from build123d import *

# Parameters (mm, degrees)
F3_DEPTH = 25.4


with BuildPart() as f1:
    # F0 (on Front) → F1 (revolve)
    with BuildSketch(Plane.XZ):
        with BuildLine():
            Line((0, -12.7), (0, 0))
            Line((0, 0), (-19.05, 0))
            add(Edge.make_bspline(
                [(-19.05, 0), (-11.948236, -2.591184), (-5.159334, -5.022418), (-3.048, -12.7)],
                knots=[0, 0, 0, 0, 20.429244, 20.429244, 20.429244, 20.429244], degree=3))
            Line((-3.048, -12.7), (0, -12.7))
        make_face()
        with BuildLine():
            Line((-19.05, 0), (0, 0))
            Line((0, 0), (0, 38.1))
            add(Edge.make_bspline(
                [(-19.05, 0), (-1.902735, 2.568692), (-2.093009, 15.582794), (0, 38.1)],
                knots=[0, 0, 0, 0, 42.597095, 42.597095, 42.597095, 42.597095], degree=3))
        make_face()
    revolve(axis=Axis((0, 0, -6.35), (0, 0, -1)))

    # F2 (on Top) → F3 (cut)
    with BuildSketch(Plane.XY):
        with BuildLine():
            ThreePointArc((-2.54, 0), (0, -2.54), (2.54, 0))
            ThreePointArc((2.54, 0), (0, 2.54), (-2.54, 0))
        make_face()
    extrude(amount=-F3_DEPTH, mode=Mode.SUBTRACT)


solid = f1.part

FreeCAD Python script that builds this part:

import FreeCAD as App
import Part
import Sketcher
Q = App.Units.Quantity

doc = App.newDocument("Part")
body = doc.addObject("PartDesign::Body", "Body")

# Sketch on XZ plane
sketch1 = body.newObject("Sketcher::SketchObject", "Sketch")
sketch1.AttachmentSupport = (doc.getObject("XZ_Plane"), [""])
sketch1.MapMode = "FlatFace"
sketch1.addGeometry([
    Part.LineSegment(App.Vector(0, -12.7, 0), App.Vector(0, 38.1, 0)),
    Part.BSplineCurve([App.Vector(-19.05, 0, 0), App.Vector(-1.902735, 2.568692, 0), App.Vector(-2.093009, 15.582794, 0), App.Vector(0, 38.1, 0)], [4, 4], [0, 42.597095], False, 3, [1, 1, 1, 1], False),
    Part.BSplineCurve([App.Vector(-19.05, 0, 0), App.Vector(-11.948236, -2.591184, 0), App.Vector(-5.159334, -5.022418, 0), App.Vector(-3.048, -12.7, 0)], [4, 4], [0, 20.429244], False, 3, [1, 1, 1, 1], False),
    Part.LineSegment(App.Vector(-3.048, -12.7, 0), App.Vector(0, -12.7, 0)),
], False)
sketch1.addConstraint([
    Sketcher.Constraint("Block", 1),
    Sketcher.Constraint("Block", 2),
    Sketcher.Constraint("Coincident", 0, 2, 1, 2),
    Sketcher.Constraint("Coincident", 2, 2, 3, 1),
    Sketcher.Constraint("Coincident", 3, 2, 0, 1),
    Sketcher.Constraint("Vertical", 0),
    Sketcher.Constraint("Horizontal", 3),
])
revolution = body.newObject("PartDesign::Revolution", "Revolution")
revolution.Profile = sketch1
revolution.ReferenceAxis = (sketch1, ["V_Axis"])
revolution.Angle = 360

# Sketch on XY plane
sketch2 = body.newObject("Sketcher::SketchObject", "Sketch001")
sketch2.AttachmentSupport = (doc.getObject("XY_Plane"), [""])
sketch2.MapMode = "FlatFace"
sketch2.addGeometry(Part.Circle(App.Vector(0, 0, 0), App.Vector(0, 0, 1), 2.54), False)
sketch2.addConstraint([
    Sketcher.Constraint("Coincident", 0, 3, -1, 1),
    Sketcher.Constraint("Diameter", 0, Q("0.2 in")),
])
pocket1 = body.newObject("PartDesign::Pocket", "Pocket")
pocket1.Profile = sketch2
pocket1.Length = Q("1 in")

doc.recompute()
